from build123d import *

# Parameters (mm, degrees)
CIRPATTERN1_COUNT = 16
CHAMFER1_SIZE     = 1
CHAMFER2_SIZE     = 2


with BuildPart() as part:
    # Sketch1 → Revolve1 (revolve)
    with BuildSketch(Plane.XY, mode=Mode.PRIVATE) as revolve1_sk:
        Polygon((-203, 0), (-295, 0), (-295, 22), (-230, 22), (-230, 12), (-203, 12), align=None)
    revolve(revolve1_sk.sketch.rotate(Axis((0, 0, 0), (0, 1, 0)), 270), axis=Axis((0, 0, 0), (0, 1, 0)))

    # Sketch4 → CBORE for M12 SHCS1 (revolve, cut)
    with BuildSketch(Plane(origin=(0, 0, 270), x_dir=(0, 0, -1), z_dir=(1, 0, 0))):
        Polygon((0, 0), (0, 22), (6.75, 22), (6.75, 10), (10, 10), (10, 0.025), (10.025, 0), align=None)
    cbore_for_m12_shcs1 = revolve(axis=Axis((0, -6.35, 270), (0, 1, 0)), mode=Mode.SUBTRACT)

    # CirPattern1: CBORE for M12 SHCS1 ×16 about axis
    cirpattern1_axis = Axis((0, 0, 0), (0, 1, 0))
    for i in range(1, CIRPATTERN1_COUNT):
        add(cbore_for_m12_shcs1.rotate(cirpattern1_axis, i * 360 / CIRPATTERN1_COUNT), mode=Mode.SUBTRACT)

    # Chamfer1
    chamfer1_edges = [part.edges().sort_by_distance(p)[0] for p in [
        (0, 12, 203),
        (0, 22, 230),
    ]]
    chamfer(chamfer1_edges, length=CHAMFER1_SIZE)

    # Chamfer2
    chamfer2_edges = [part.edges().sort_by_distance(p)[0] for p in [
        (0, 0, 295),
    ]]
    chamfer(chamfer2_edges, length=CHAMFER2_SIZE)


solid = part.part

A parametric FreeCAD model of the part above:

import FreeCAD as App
import Part
import Sketcher
Q = App.Units.Quantity


def edges_at(feature, points):
    """Names of the edges that pass closest to the given points."""
    edges = feature.Shape.Edges
    near = lambda p: min(range(len(edges)), key=lambda i: edges[i].distToShape(Part.Vertex(*p))[0])
    return sorted({f"Edge{near(p) + 1}" for p in points})


def add_polygon(sketch, points):
    """Adds a closed chain of lines whose ends are joined by coincident constraints."""
    first, n = sketch.GeometryCount, len(points)
    for a, b in zip(points, points[1:] + points[:1]):
        sketch.addGeometry(Part.LineSegment(App.Vector(*a, 0), App.Vector(*b, 0)), False)
    for i in range(n):
        sketch.addConstraint(Sketcher.Constraint("Coincident", first + i, 2, first + (i + 1) % n, 1))

doc = App.newDocument("Part")
params = doc.addObject("Spreadsheet::Sheet", "Params")
for row, (alias, value) in enumerate([
    ("sketch1_width", "92 mm"),
    ("sketch1_width2", "27 mm"),
    ("sketch1_height", "12 mm"),
    ("sketch1_height2", "10 mm"),
    ("revolution_angle", "360 deg"),
    ("sketch2_width", "22 mm"),
    ("sketch2_width2", "12 mm"),
    ("sketch2_height", "3.25 mm"),
    ("groove_angle", "360 deg"),
    ("chamfer_size", "1 mm"),
    ("chamfer2_size", "2 mm"),
], start=1):
    params.set(f"A{row}", alias)
    params.set(f"B{row}", "=" + value)
    params.setAlias(f"B{row}", alias)

body = doc.addObject("PartDesign::Body", "Body")

# Sketch on XY plane
sketch1 = body.newObject("Sketcher::SketchObject", "Sketch")
sketch1.AttachmentSupport = (doc.getObject("XY_Plane"), [""])
sketch1.MapMode = "FlatFace"
add_polygon(sketch1, [(-295, 0), (-203, 0), (-203, 12), (-230, 12), (-230, 22), (-295, 22)])  # lines 0-5
sketch1.addConstraint(Sketcher.Constraint("Horizontal", 0))
sketch1.addConstraint(Sketcher.Constraint("Vertical", 1))
sketch1.addConstraint(Sketcher.Constraint("Horizontal", 2))
sketch1.addConstraint(Sketcher.Constraint("Vertical", 3))
sketch1.addConstraint(Sketcher.Constraint("Horizontal", 4))
sketch1.addConstraint(Sketcher.Constraint("Vertical", 5))
sketch1.addConstraint(Sketcher.Constraint("PointOnObject", 0, 2, -1))
sketch1.addConstraint(Sketcher.Constraint("DistanceX", 0, 1, 0, 2, 92.0))
sketch1.addConstraint(Sketcher.Constraint("DistanceX", 2, 2, 2, 1, 27.0))
sketch1.addConstraint(Sketcher.Constraint("DistanceY", 1, 1, 1, 2, 12.0))
sketch1.addConstraint(Sketcher.Constraint("DistanceY", 3, 1, 3, 2, 10.0))
sketch1.addConstraint(Sketcher.Constraint("DistanceX", 0, 2, -1, 1, 203.0))
sketch1.setExpression("Constraints[13]", "Params.sketch1_width")
sketch1.setExpression("Constraints[14]", "Params.sketch1_width2")
sketch1.setExpression("Constraints[15]", "Params.sketch1_height")
sketch1.setExpression("Constraints[16]", "Params.sketch1_height2")
revolution = body.newObject("PartDesign::Revolution", "Revolution")
revolution.Profile = sketch1
revolution.ReferenceAxis = (sketch1, ["V_Axis"])
revolution.setExpression("Angle", "Params.revolution_angle")

# Sketch on YZ plane
sketch2 = body.newObject("Sketcher::SketchObject", "Sketch001")
sketch2.AttachmentSupport = (doc.getObject("YZ_Plane"), [""])
sketch2.MapMode = "FlatFace"
add_polygon(sketch2, [(22, 270), (0, 270), (0, 259.975), (0.025, 260), (10, 260), (10, 263.25), (22, 263.25)])  # lines 0-6
sketch2.addGeometry(Part.LineSegment(App.Vector(0, 270, 0), App.Vector(22, 270, 0)), True)  # axis
sketch2.addConstraint(Sketcher.Constraint("Horizontal", 0))
sketch2.addConstraint(Sketcher.Constraint("Vertical", 1))
sketch2.addConstraint(Sketcher.Constraint("Horizontal", 3))
sketch2.addConstraint(Sketcher.Constraint("Vertical", 4))
sketch2.addConstraint(Sketcher.Constraint("Horizontal", 5))
sketch2.addConstraint(Sketcher.Constraint("Vertical", 6))
sketch2.addConstraint(Sketcher.Constraint("Horizontal", 7))
sketch2.addConstraint(Sketcher.Constraint("Coincident", 7, 1, 0, 2))
sketch2.addConstraint(Sketcher.Constraint("PointOnObject", 0, 2, -2))
sketch2.addConstraint(Sketcher.Constraint("Vertical", 5, 2, 7, 2))
sketch2.addConstraint(Sketcher.Constraint("DistanceX", 0, 2, 0, 1, 22.0))
sketch2.addConstraint(Sketcher.Constraint("DistanceX", 5, 1, 5, 2, 12.0))
sketch2.addConstraint(Sketcher.Constraint("Angle", 2, Q("45 deg")))
sketch2.addConstraint(Sketcher.Constraint("DistanceY", -1, 1, 0, 2, 270.0))
sketch2.addConstraint(Sketcher.Constraint("DistanceY", -1, 1, 2, 2, 260.0))
sketch2.addConstraint(Sketcher.Constraint("DistanceY", 4, 1, 4, 2, 3.25))
sketch2.addConstraint(Sketcher.Constraint("DistanceX", 3, 1, 3, 2, 9.975))
sketch2.setExpression("Constraints[17]", "Params.sketch2_width")
sketch2.setExpression("Constraints[18]", "Params.sketch2_width2")
sketch2.setExpression("Constraints[22]", "Params.sketch2_height")
groove = body.newObject("PartDesign::Groove", "Groove")
groove.Profile = sketch2
groove.ReferenceAxis = (sketch2, ["Axis0"])
groove.setExpression("Angle", "Params.groove_angle")
doc.recompute()

polarpattern = body.newObject("PartDesign::PolarPattern", "PolarPattern")
polarpattern.Originals = [groove]
polarpattern.Axis = (doc.getObject("Y_Axis"), [""])
polarpattern.Angle = 360
polarpattern.Occurrences = 16
body.Tip = polarpattern
doc.recompute()

chamfer = body.newObject("PartDesign::Chamfer", "Chamfer")
chamfer.Base = (polarpattern, edges_at(polarpattern, [(0, 12, 203), (0, 22, 230)]))
chamfer.setExpression("Size", "Params.chamfer_size")
doc.recompute()

chamfer2 = body.newObject("PartDesign::Chamfer", "Chamfer001")
chamfer2.Base = (chamfer, edges_at(chamfer, [(0, 0, 295)]))
chamfer2.setExpression("Size", "Params.chamfer2_size")

doc.recompute()
